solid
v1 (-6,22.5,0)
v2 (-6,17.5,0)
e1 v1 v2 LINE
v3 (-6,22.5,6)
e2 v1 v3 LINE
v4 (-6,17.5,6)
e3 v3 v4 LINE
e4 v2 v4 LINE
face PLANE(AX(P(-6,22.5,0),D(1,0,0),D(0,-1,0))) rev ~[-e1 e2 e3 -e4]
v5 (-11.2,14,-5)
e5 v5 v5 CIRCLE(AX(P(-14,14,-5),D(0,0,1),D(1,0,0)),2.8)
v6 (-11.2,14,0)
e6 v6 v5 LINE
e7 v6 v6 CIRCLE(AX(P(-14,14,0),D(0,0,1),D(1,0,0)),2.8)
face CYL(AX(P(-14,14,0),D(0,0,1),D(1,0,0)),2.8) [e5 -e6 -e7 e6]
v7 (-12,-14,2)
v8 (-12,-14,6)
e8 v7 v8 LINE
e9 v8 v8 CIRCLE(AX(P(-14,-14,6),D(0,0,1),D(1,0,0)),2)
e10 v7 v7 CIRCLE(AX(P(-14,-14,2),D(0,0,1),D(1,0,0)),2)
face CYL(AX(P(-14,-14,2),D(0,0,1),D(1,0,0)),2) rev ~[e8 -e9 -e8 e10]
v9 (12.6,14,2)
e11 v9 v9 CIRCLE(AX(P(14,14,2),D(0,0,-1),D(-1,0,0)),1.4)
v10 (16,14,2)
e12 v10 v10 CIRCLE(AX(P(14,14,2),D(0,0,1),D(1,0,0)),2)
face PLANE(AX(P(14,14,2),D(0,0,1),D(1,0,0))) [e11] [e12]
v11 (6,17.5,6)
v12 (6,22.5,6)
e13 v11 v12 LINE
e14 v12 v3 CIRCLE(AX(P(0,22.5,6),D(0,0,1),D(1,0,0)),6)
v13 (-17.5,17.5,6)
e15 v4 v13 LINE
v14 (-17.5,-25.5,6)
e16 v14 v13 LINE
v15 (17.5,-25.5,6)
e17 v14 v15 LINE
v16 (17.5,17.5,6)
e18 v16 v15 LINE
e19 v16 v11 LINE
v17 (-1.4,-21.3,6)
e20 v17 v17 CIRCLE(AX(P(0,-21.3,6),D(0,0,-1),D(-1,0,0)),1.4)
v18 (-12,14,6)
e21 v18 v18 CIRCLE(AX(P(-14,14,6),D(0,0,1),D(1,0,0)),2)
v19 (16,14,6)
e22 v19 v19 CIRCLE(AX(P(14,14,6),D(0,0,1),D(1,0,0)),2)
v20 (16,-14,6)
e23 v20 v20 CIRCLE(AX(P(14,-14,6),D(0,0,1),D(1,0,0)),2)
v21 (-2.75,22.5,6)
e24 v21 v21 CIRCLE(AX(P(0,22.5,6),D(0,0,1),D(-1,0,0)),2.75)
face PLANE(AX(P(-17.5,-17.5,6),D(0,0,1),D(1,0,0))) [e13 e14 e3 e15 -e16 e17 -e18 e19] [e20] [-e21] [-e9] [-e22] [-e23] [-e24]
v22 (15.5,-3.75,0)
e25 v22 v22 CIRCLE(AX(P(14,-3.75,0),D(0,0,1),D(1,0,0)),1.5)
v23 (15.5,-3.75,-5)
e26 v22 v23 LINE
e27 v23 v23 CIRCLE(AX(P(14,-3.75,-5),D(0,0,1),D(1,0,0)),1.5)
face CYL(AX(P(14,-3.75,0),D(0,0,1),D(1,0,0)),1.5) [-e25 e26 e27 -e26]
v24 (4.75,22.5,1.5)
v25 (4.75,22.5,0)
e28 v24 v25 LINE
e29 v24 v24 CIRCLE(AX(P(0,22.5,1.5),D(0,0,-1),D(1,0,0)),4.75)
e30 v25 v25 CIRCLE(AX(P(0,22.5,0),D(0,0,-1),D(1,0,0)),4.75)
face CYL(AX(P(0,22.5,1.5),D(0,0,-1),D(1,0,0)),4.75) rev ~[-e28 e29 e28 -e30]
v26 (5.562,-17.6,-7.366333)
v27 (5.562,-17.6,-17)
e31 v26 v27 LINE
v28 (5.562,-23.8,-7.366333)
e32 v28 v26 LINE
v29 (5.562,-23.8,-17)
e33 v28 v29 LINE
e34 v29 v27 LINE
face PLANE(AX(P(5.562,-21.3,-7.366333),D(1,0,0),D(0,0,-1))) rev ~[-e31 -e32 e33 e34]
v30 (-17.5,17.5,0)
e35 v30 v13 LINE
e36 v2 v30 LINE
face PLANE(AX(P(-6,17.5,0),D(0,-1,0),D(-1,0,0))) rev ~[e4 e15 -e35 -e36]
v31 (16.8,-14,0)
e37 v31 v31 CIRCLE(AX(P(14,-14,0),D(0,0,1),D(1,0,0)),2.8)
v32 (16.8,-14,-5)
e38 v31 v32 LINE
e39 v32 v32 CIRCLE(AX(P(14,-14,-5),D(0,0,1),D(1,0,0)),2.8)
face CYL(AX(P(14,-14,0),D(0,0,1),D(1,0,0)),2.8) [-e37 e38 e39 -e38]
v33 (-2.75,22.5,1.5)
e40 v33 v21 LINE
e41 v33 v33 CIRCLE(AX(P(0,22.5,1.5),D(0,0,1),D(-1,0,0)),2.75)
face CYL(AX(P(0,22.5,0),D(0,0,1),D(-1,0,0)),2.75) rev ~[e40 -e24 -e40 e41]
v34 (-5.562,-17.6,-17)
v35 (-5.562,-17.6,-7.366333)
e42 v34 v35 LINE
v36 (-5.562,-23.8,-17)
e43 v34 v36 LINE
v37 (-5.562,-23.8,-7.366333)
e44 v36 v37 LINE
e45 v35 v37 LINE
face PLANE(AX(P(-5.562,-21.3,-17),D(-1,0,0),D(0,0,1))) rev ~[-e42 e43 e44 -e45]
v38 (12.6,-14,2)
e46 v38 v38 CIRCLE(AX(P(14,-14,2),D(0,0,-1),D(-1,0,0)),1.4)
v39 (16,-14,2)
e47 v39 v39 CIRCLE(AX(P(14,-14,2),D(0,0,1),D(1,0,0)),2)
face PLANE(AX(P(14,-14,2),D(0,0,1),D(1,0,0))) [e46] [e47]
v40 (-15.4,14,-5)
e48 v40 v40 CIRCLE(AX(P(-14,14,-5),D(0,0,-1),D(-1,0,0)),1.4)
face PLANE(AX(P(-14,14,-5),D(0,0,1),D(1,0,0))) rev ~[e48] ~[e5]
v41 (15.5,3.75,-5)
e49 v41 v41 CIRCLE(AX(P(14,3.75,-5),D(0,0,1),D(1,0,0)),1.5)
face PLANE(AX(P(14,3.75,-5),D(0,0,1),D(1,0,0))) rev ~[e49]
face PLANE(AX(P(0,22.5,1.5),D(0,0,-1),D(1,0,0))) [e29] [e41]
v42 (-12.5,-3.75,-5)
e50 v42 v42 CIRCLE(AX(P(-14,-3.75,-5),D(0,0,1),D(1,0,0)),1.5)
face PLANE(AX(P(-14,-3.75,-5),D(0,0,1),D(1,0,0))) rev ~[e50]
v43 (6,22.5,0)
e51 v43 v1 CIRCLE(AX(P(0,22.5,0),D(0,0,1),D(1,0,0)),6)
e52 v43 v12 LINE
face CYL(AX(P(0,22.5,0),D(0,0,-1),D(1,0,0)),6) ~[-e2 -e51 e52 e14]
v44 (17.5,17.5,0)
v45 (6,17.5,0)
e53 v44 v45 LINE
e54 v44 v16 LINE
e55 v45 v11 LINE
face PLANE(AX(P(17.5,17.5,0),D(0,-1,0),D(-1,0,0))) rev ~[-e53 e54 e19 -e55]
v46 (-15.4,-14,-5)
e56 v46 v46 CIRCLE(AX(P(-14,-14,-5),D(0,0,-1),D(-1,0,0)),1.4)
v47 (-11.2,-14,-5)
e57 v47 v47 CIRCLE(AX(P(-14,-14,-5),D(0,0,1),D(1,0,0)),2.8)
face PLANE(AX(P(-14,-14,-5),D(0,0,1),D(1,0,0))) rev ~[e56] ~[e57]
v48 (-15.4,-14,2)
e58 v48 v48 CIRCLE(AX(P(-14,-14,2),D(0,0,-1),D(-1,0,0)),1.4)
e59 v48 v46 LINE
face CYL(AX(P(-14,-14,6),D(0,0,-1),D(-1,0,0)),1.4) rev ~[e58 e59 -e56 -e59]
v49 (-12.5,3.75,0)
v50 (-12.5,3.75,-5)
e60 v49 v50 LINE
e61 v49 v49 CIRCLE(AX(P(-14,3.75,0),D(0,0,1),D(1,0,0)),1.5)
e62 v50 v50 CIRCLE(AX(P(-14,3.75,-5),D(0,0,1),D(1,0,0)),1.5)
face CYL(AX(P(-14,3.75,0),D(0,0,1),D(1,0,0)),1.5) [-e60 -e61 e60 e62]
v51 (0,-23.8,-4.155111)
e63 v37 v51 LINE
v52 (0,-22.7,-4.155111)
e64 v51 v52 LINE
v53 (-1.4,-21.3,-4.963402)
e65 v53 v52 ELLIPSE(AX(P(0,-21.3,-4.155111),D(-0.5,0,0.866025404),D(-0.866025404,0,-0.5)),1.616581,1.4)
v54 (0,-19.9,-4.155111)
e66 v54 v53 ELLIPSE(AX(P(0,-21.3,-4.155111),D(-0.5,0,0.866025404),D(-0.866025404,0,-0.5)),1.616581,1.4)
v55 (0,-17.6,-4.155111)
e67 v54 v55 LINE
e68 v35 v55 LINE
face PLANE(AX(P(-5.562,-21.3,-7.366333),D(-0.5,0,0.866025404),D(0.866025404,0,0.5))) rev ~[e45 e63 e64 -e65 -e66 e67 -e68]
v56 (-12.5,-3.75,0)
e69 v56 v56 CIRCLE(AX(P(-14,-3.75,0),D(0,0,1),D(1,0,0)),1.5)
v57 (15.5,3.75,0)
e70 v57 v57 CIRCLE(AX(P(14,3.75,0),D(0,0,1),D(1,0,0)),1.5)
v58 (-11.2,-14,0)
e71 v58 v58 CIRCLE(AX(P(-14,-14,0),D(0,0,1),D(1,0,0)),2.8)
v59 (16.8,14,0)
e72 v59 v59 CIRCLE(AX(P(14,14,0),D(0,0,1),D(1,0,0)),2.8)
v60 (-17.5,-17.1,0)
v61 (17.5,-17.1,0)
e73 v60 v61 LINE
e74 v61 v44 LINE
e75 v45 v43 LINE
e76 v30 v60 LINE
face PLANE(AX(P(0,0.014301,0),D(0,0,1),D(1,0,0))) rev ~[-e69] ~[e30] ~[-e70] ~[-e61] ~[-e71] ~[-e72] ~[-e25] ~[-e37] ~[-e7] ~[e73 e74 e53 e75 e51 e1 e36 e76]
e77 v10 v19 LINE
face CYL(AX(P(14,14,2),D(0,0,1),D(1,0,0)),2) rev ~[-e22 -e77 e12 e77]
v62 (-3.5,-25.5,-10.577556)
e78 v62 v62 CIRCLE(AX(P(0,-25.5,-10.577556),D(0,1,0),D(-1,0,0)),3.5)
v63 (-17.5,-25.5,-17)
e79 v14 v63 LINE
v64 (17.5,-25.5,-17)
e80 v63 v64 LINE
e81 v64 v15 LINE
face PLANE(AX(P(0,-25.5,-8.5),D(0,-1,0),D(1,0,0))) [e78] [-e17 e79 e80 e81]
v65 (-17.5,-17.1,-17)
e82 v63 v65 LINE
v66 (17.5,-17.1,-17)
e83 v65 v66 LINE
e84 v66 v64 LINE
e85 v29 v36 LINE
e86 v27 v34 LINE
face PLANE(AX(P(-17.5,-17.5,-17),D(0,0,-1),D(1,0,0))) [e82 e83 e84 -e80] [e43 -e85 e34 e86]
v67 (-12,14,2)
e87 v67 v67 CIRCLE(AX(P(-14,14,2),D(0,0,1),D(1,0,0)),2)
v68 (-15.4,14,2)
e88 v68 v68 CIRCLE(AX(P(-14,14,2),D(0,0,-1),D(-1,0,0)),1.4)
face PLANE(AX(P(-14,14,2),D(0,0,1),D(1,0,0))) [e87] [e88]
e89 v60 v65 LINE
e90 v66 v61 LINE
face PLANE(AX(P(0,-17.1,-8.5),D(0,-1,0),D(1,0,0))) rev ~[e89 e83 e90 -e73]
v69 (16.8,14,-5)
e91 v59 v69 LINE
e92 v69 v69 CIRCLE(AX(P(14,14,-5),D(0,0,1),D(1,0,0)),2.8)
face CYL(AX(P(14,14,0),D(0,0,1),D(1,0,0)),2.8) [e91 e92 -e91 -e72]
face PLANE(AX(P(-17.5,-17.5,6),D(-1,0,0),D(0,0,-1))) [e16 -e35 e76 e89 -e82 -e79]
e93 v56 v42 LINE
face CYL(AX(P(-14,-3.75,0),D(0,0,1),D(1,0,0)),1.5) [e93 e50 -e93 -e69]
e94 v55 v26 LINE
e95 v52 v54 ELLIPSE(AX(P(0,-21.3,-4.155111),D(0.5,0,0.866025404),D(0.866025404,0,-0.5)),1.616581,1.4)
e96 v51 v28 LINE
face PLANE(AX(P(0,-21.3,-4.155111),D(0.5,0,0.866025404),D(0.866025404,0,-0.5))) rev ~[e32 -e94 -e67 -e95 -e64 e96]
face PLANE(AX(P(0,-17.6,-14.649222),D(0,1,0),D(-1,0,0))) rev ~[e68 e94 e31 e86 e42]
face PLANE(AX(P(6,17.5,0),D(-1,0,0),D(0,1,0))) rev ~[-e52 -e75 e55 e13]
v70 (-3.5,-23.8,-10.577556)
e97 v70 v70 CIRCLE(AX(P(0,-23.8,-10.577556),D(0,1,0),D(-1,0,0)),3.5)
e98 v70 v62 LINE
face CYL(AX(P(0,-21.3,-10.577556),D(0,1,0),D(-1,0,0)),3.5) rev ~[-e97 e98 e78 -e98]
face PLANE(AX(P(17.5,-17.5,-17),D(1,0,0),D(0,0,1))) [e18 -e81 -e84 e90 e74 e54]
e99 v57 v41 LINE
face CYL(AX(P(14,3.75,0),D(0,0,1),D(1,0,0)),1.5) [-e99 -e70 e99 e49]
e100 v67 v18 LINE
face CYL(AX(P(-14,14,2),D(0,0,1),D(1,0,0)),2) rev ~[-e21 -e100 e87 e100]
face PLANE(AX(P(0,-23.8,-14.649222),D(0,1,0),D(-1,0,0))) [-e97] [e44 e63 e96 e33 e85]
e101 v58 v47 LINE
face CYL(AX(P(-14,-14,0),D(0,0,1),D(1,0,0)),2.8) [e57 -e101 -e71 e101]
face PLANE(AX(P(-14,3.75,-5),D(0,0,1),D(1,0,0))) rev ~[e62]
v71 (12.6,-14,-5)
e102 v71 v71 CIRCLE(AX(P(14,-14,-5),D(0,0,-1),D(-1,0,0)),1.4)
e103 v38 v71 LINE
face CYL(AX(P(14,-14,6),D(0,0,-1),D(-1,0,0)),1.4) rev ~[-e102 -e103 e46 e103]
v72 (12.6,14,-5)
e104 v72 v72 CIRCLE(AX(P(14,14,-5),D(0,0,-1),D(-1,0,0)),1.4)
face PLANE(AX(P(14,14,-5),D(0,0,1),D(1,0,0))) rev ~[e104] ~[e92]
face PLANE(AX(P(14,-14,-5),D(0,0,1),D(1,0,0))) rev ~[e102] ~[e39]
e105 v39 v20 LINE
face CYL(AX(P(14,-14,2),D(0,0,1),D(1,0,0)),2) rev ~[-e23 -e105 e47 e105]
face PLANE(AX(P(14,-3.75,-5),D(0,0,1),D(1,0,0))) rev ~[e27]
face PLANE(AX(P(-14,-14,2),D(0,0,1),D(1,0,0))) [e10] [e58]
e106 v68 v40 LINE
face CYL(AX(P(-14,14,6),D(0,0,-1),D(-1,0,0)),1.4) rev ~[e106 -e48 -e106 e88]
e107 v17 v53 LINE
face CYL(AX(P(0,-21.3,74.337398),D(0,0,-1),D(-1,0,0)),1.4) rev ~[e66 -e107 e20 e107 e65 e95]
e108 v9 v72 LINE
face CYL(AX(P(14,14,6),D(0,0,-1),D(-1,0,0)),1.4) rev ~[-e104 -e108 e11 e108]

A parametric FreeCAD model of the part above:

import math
import FreeCAD as App
import Part
import Sketcher
from FreeCAD import Vector
Q = App.Units.Quantity

doc = App.newDocument("Part")
body = doc.addObject("PartDesign::Body", "Body")

sketch1 = doc.addObject("Sketcher::SketchObject", "Sketch")
body.addObject(sketch1)
sketch1.AttachmentSupport = (doc.XY_Plane, [""])
sketch1.MapMode = "FlatFace"
sketch1.addGeometry(Part.LineSegment(Vector(-6, 18, 0), Vector(-18, 18, 0)), False)
sketch1.addGeometry(Part.LineSegment(Vector(-18, 18, 0), Vector(-18, -18, 0)), False)
sketch1.addGeometry(Part.LineSegment(Vector(-18, -18, 0), Vector(18, -18, 0)), False)
sketch1.addGeometry(Part.LineSegment(Vector(18, -18, 0), Vector(18, 18, 0)), False)
sketch1.addGeometry(Part.LineSegment(Vector(18, 18, 0), Vector(6, 18, 0)), False)
sketch1.addGeometry(Part.LineSegment(Vector(6, 18, 0), Vector(6, 22, 0)), False)
sketch1.addGeometry(Part.ArcOfCircle(Part.Circle(Vector(0, 22, 0), Vector(0, 0, 1), 6), math.radians(0), math.radians(180)), False)
sketch1.addGeometry(Part.LineSegment(Vector(-6, 22, 0), Vector(-6, 18, 0)), False)
sketch1.addConstraint(Sketcher.Constraint("Coincident", 0, 2, 1, 1))
sketch1.addConstraint(Sketcher.Constraint("Coincident", 1, 2, 2, 1))
sketch1.addConstraint(Sketcher.Constraint("Coincident", 2, 2, 3, 1))
sketch1.addConstraint(Sketcher.Constraint("Coincident", 3, 2, 4, 1))
sketch1.addConstraint(Sketcher.Constraint("Coincident", 4, 2, 5, 1))
sketch1.addConstraint(Sketcher.Constraint("Tangent", 5, 2, 6, 1))
sketch1.addConstraint(Sketcher.Constraint("Tangent", 6, 2, 7, 1))
sketch1.addConstraint(Sketcher.Constraint("Coincident", 7, 2, 0, 1))
sketch1.addConstraint(Sketcher.Constraint("Horizontal", 0))
sketch1.addConstraint(Sketcher.Constraint("Vertical", 1))
sketch1.addConstraint(Sketcher.Constraint("Horizontal", 2))
sketch1.addConstraint(Sketcher.Constraint("Vertical", 3))
sketch1.addConstraint(Sketcher.Constraint("Horizontal", 4))
sketch1.addConstraint(Sketcher.Constraint("Vertical", 5))
sketch1.addConstraint(Sketcher.Constraint("Vertical", 7))
sketch1.addConstraint(Sketcher.Constraint("Symmetric", 0, 2, 2, 2, -1, 1))
sketch1.addConstraint(Sketcher.Constraint("Symmetric", 4, 2, 7, 2, -2))
sketch1.addConstraint(Sketcher.Constraint("Equal", 2, 1))
sketch1.addConstraint(Sketcher.Constraint("Radius", 6, 6.0))
sketch1.addConstraint(Sketcher.Constraint("DistanceX", 2, 1, 2, 2, 35.0))
sketch1.addConstraint(Sketcher.Constraint("DistanceY", 5, 1, 5, 2, 5.0))
pad1 = doc.addObject("PartDesign::Pad", "Pad")
body.addObject(pad1)
pad1.Profile = sketch1
pad1.Length = 6

sketch2 = doc.addObject("Sketcher::SketchObject", "Sketch001")
body.addObject(sketch2)
sketch2.AttachmentSupport = (doc.XY_Plane, [""])
sketch2.MapMode = "FlatFace"
sketch2.addGeometry(Part.Circle(Vector(-14, -14, 0), Vector(0, 0, 1), 2.8), False)
sketch2.addGeometry(Part.Circle(Vector(-14, 14, 0), Vector(0, 0, 1), 2.8), False)
sketch2.addGeometry(Part.Circle(Vector(14, 14, 0), Vector(0, 0, 1), 2.8), False)
sketch2.addGeometry(Part.Circle(Vector(14, -14, 0), Vector(0, 0, 1), 2.8), False)
sketch2.addGeometry(Part.Circle(Vector(-14, 3.8, 0), Vector(0, 0, 1), 1.5), False)
sketch2.addGeometry(Part.Circle(Vector(-14, -3.8, 0), Vector(0, 0, 1), 1.5), False)
sketch2.addGeometry(Part.Circle(Vector(14, -3.8, 0), Vector(0, 0, 1), 1.5), False)
sketch2.addGeometry(Part.Circle(Vector(14, 3.8, 0), Vector(0, 0, 1), 1.5), False)
sketch2.addConstraint(Sketcher.Constraint("Equal", 0, 1))
sketch2.addConstraint(Sketcher.Constraint("Equal", 1, 2))
sketch2.addConstraint(Sketcher.Constraint("Equal", 2, 3))
sketch2.addConstraint(Sketcher.Constraint("Equal", 4, 5))
sketch2.addConstraint(Sketcher.Constraint("Equal", 5, 6))
sketch2.addConstraint(Sketcher.Constraint("Equal", 6, 7))
sketch2.addConstraint(Sketcher.Constraint("Symmetric", 0, 3, 2, 3, -1, 1))
sketch2.addConstraint(Sketcher.Constraint("Symmetric", 1, 3, 3, 3, -1, 1))
sketch2.addConstraint(Sketcher.Constraint("Symmetric", 4, 3, 6, 3, -1, 1))
sketch2.addConstraint(Sketcher.Constraint("Symmetric", 5, 3, 7, 3, -1, 1))
sketch2.addConstraint(Sketcher.Constraint("Symmetric", 1, 3, 2, 3, -2))
sketch2.addConstraint(Sketcher.Constraint("Symmetric", 5, 3, 6, 3, -2))
sketch2.addConstraint(Sketcher.Constraint("Vertical", 1, 3, 4, 3))
sketch2.addConstraint(Sketcher.Constraint("Diameter", 4, 3.0))
sketch2.addConstraint(Sketcher.Constraint("Diameter", 0, 5.6))
sketch2.addConstraint(Sketcher.Constraint("DistanceX", 0, 3, -1, 1, 14.0))
sketch2.addConstraint(Sketcher.Constraint("DistanceY", 0, 3, -1, 1, 14.0))
sketch2.addConstraint(Sketcher.Constraint("DistanceY", 5, 3, 4, 3, 7.5))
pad2 = doc.addObject("PartDesign::Pad", "Pad001")
body.addObject(pad2)
pad2.Profile = sketch2
pad2.Length = 5
pad2.Reversed = True

sketch3 = doc.addObject("Sketcher::SketchObject", "Sketch002")
body.addObject(sketch3)
sketch3.AttachmentSupport = (doc.XY_Plane, [""])
sketch3.MapMode = "FlatFace"
sketch3.addGeometry(Part.Circle(Vector(0, 22.5, 0), Vector(0, 0, 1), 2.8), False)
sketch3.addConstraint(Sketcher.Constraint("PointOnObject", 0, 3, -2))
sketch3.addConstraint(Sketcher.Constraint("Diameter", 0, 5.5))
sketch3.addConstraint(Sketcher.Constraint("DistanceY", -1, 1, 0, 3, 22.5))
doc.recompute()
hole = doc.addObject("PartDesign::Hole", "Hole")
body.addObject(hole)
hole.Profile = sketch3
hole.ThreadType = "None"
hole.Diameter = 5.5
hole.DepthType = "Dimension"
hole.Depth = 30
hole.DrillPoint = "Angled"
hole.DrillPointAngle = 118
hole.HoleCutType = "Counterbore"
hole.HoleCutDiameter = 9.5
hole.HoleCutDepth = 1.5
hole.Reversed = True

sketch4 = doc.addObject("Sketcher::SketchObject", "Sketch003")
body.addObject(sketch4)
sketch4.AttachmentSupport = (doc.XY_Plane, [""])
sketch4.MapMode = "FlatFace"
sketch4.AttachmentOffset = App.Placement(Vector(0, 0, 6), App.Rotation())
sketch4.addGeometry(Part.Circle(Vector(-14, 14, 0), Vector(0, 0, 1), 1.4), False)
sketch4.addGeometry(Part.Circle(Vector(14, 14, 0), Vector(0, 0, 1), 1.4), False)
sketch4.addGeometry(Part.Circle(Vector(14, -14, 0), Vector(0, 0, 1), 1.4), False)
sketch4.addGeometry(Part.Circle(Vector(-14, -14, 0), Vector(0, 0, 1), 1.4), False)
sketch4.addConstraint(Sketcher.Constraint("Equal", 0, 1))
sketch4.addConstraint(Sketcher.Constraint("Equal", 1, 2))
sketch4.addConstraint(Sketcher.Constraint("Equal", 2, 3))
sketch4.addConstraint(Sketcher.Constraint("Symmetric", 0, 3, 2, 3, -1, 1))
sketch4.addConstraint(Sketcher.Constraint("Symmetric", 1, 3, 3, 3, -1, 1))
sketch4.addConstraint(Sketcher.Constraint("Symmetric", 0, 3, 1, 3, -2))
sketch4.addConstraint(Sketcher.Constraint("Diameter", 0, 2.8))
sketch4.addConstraint(Sketcher.Constraint("DistanceX", 0, 3, -1, 1, 14.0))
sketch4.addConstraint(Sketcher.Constraint("DistanceY", -1, 1, 0, 3, 14.0))
doc.recompute()
hole2 = doc.addObject("PartDesign::Hole", "Hole001")
body.addObject(hole2)
hole2.Profile = sketch4
hole2.ThreadType = "None"
hole2.Diameter = 2.8
hole2.DepthType = "ThroughAll"
hole2.HoleCutType = "Counterbore"
hole2.HoleCutDiameter = 4
hole2.HoleCutDepth = 4

sketch5 = doc.addObject("Sketcher::SketchObject", "Sketch004")
body.addObject(sketch5)
sketch5.AttachmentSupport = (doc.XZ_Plane, [""])
sketch5.MapMode = "FlatFace"
sketch5.AttachmentOffset = App.Placement(Vector(0, 0, 17.5), App.Rotation())
sketch5.addGeometry(Part.LineSegment(Vector(-18, -17, 0), Vector(18, -17, 0)), False)
sketch5.addGeometry(Part.LineSegment(Vector(18, -17, 0), Vector(18, 6, 0)), False)
sketch5.addGeometry(Part.LineSegment(Vector(18, 6, 0), Vector(-18, 6, 0)), False)
sketch5.addGeometry(Part.LineSegment(Vector(-18, 6, 0), Vector(-18, -17, 0)), False)
sketch5.addConstraint(Sketcher.Constraint("Coincident", 0, 2, 1, 1))
sketch5.addConstraint(Sketcher.Constraint("Coincident", 1, 2, 2, 1))
sketch5.addConstraint(Sketcher.Constraint("Coincident", 2, 2, 3, 1))
sketch5.addConstraint(Sketcher.Constraint("Coincident", 3, 2, 0, 1))
sketch5.addConstraint(Sketcher.Constraint("Horizontal", 0))
sketch5.addConstraint(Sketcher.Constraint("Vertical", 1))
sketch5.addConstraint(Sketcher.Constraint("Horizontal", 2))
sketch5.addConstraint(Sketcher.Constraint("Vertical", 3))
sketch5.addConstraint(Sketcher.Constraint("DistanceX", 0, 1, 0, 2, 35.0))
sketch5.addConstraint(Sketcher.Constraint("DistanceY", 1, 1, 1, 2, 23.0))
sketch5.addConstraint(Sketcher.Constraint("DistanceY", 0, 2, -1, 1, 17.0))
sketch5.addConstraint(Sketcher.Constraint("DistanceX", -1, 1, 0, 2, 17.5))
pad3 = doc.addObject("PartDesign::Pad", "Pad002")
body.addObject(pad3)
pad3.Profile = sketch5
pad3.Type = "TwoLengths"
pad3.Length = 8
pad3.Length2 = 0.4

sketch6 = doc.addObject("Sketcher::SketchObject", "Sketch005")
body.addObject(sketch6)
sketch6.AttachmentSupport = (doc.XZ_Plane, [""])
sketch6.MapMode = "FlatFace"
sketch6.AttachmentOffset = App.Placement(Vector(0, 0, 21.3), App.Rotation())
sketch6.addGeometry(Part.LineSegment(Vector(-6, -7, 0), Vector(0, -4, 0)), False)
sketch6.addGeometry(Part.LineSegment(Vector(0, -4, 0), Vector(6, -7, 0)), False)
sketch6.addGeometry(Part.LineSegment(Vector(6, -7, 0), Vector(6, -17, 0)), False)
sketch6.addGeometry(Part.LineSegment(Vector(6, -17, 0), Vector(-6, -17, 0)), False)
sketch6.addGeometry(Part.LineSegment(Vector(-6, -17, 0), Vector(-6, -7, 0)), False)
sketch6.addConstraint(Sketcher.Constraint("Coincident", 0, 2, 1, 1))
sketch6.addConstraint(Sketcher.Constraint("Coincident", 1, 2, 2, 1))
sketch6.addConstraint(Sketcher.Constraint("Coincident", 2, 2, 3, 1))
sketch6.addConstraint(Sketcher.Constraint("Coincident", 3, 2, 4, 1))
sketch6.addConstraint(Sketcher.Constraint("Coincident", 4, 2, 0, 1))
sketch6.addConstraint(Sketcher.Constraint("Vertical", 2))
sketch6.addConstraint(Sketcher.Constraint("Horizontal", 3))
sketch6.addConstraint(Sketcher.Constraint("Vertical", 4))
sketch6.addConstraint(Sketcher.Constraint("Symmetric", 1, 2, 4, 2, -2))
sketch6.addConstraint(Sketcher.Constraint("PointOnObject", 0, 2, -2))
sketch6.addConstraint(Sketcher.Constraint("Angle", 0, Q("30 deg")))
sketch6.addConstraint(Sketcher.Constraint("DistanceY", 2, 2, -1, 1, 17.0))
sketch6.addConstraint(Sketcher.Constraint("DistanceX", 3, 2, 3, 1, 11.124))
sketch6.addConstraint(Sketcher.Constraint("DistanceY", 2, 2, 2, 1, 9.633667))
pocket1 = doc.addObject("PartDesign::Pocket", "Pocket")
body.addObject(pocket1)
pocket1.Profile = sketch6
pocket1.Type = "TwoLengths"
pocket1.Length = 3.7
pocket1.Length2 = 2.5

sketch7 = doc.addObject("Sketcher::SketchObject", "Sketch006")
body.addObject(sketch7)
sketch7.AttachmentSupport = (doc.XZ_Plane, [""])
sketch7.MapMode = "FlatFace"
sketch7.AttachmentOffset = App.Placement(Vector(0, 0, 21.3), App.Rotation())
sketch7.addGeometry(Part.Circle(Vector(0, -10.6, 0), Vector(0, 0, 1), 3.5), False)
sketch7.addConstraint(Sketcher.Constraint("PointOnObject", 0, 3, -2))
sketch7.addConstraint(Sketcher.Constraint("Diameter", 0, 7.0))
sketch7.addConstraint(Sketcher.Constraint("DistanceY", 0, 3, -1, 1, 10.577556))
pocket2 = doc.addObject("PartDesign::Pocket", "Pocket001")
body.addObject(pocket2)
pocket2.Profile = sketch7
pocket2.Type = "ThroughAll"
pocket2.Reversed = True

sketch8 = doc.addObject("Sketcher::SketchObject", "Sketch007")
body.addObject(sketch8)
sketch8.AttachmentSupport = (doc.XY_Plane, [""])
sketch8.MapMode = "FlatFace"
sketch8.AttachmentOffset = App.Placement(Vector(0, 0, 6), App.Rotation())
sketch8.addGeometry(Part.Circle(Vector(0, -21.3, 0), Vector(0, 0, 1), 1.4), False)
sketch8.addConstraint(Sketcher.Constraint("PointOnObject", 0, 3, -2))
sketch8.addConstraint(Sketcher.Constraint("Diameter", 0, 2.8))
sketch8.addConstraint(Sketcher.Constraint("DistanceY", 0, 3, -1, 1, 21.3))
doc.recompute()
hole3 = doc.addObject("PartDesign::Hole", "Hole002")
body.addObject(hole3)
hole3.Profile = sketch8
hole3.ThreadType = "None"
hole3.Diameter = 2.8
hole3.DepthType = "ThroughAll"

doc.recompute()
